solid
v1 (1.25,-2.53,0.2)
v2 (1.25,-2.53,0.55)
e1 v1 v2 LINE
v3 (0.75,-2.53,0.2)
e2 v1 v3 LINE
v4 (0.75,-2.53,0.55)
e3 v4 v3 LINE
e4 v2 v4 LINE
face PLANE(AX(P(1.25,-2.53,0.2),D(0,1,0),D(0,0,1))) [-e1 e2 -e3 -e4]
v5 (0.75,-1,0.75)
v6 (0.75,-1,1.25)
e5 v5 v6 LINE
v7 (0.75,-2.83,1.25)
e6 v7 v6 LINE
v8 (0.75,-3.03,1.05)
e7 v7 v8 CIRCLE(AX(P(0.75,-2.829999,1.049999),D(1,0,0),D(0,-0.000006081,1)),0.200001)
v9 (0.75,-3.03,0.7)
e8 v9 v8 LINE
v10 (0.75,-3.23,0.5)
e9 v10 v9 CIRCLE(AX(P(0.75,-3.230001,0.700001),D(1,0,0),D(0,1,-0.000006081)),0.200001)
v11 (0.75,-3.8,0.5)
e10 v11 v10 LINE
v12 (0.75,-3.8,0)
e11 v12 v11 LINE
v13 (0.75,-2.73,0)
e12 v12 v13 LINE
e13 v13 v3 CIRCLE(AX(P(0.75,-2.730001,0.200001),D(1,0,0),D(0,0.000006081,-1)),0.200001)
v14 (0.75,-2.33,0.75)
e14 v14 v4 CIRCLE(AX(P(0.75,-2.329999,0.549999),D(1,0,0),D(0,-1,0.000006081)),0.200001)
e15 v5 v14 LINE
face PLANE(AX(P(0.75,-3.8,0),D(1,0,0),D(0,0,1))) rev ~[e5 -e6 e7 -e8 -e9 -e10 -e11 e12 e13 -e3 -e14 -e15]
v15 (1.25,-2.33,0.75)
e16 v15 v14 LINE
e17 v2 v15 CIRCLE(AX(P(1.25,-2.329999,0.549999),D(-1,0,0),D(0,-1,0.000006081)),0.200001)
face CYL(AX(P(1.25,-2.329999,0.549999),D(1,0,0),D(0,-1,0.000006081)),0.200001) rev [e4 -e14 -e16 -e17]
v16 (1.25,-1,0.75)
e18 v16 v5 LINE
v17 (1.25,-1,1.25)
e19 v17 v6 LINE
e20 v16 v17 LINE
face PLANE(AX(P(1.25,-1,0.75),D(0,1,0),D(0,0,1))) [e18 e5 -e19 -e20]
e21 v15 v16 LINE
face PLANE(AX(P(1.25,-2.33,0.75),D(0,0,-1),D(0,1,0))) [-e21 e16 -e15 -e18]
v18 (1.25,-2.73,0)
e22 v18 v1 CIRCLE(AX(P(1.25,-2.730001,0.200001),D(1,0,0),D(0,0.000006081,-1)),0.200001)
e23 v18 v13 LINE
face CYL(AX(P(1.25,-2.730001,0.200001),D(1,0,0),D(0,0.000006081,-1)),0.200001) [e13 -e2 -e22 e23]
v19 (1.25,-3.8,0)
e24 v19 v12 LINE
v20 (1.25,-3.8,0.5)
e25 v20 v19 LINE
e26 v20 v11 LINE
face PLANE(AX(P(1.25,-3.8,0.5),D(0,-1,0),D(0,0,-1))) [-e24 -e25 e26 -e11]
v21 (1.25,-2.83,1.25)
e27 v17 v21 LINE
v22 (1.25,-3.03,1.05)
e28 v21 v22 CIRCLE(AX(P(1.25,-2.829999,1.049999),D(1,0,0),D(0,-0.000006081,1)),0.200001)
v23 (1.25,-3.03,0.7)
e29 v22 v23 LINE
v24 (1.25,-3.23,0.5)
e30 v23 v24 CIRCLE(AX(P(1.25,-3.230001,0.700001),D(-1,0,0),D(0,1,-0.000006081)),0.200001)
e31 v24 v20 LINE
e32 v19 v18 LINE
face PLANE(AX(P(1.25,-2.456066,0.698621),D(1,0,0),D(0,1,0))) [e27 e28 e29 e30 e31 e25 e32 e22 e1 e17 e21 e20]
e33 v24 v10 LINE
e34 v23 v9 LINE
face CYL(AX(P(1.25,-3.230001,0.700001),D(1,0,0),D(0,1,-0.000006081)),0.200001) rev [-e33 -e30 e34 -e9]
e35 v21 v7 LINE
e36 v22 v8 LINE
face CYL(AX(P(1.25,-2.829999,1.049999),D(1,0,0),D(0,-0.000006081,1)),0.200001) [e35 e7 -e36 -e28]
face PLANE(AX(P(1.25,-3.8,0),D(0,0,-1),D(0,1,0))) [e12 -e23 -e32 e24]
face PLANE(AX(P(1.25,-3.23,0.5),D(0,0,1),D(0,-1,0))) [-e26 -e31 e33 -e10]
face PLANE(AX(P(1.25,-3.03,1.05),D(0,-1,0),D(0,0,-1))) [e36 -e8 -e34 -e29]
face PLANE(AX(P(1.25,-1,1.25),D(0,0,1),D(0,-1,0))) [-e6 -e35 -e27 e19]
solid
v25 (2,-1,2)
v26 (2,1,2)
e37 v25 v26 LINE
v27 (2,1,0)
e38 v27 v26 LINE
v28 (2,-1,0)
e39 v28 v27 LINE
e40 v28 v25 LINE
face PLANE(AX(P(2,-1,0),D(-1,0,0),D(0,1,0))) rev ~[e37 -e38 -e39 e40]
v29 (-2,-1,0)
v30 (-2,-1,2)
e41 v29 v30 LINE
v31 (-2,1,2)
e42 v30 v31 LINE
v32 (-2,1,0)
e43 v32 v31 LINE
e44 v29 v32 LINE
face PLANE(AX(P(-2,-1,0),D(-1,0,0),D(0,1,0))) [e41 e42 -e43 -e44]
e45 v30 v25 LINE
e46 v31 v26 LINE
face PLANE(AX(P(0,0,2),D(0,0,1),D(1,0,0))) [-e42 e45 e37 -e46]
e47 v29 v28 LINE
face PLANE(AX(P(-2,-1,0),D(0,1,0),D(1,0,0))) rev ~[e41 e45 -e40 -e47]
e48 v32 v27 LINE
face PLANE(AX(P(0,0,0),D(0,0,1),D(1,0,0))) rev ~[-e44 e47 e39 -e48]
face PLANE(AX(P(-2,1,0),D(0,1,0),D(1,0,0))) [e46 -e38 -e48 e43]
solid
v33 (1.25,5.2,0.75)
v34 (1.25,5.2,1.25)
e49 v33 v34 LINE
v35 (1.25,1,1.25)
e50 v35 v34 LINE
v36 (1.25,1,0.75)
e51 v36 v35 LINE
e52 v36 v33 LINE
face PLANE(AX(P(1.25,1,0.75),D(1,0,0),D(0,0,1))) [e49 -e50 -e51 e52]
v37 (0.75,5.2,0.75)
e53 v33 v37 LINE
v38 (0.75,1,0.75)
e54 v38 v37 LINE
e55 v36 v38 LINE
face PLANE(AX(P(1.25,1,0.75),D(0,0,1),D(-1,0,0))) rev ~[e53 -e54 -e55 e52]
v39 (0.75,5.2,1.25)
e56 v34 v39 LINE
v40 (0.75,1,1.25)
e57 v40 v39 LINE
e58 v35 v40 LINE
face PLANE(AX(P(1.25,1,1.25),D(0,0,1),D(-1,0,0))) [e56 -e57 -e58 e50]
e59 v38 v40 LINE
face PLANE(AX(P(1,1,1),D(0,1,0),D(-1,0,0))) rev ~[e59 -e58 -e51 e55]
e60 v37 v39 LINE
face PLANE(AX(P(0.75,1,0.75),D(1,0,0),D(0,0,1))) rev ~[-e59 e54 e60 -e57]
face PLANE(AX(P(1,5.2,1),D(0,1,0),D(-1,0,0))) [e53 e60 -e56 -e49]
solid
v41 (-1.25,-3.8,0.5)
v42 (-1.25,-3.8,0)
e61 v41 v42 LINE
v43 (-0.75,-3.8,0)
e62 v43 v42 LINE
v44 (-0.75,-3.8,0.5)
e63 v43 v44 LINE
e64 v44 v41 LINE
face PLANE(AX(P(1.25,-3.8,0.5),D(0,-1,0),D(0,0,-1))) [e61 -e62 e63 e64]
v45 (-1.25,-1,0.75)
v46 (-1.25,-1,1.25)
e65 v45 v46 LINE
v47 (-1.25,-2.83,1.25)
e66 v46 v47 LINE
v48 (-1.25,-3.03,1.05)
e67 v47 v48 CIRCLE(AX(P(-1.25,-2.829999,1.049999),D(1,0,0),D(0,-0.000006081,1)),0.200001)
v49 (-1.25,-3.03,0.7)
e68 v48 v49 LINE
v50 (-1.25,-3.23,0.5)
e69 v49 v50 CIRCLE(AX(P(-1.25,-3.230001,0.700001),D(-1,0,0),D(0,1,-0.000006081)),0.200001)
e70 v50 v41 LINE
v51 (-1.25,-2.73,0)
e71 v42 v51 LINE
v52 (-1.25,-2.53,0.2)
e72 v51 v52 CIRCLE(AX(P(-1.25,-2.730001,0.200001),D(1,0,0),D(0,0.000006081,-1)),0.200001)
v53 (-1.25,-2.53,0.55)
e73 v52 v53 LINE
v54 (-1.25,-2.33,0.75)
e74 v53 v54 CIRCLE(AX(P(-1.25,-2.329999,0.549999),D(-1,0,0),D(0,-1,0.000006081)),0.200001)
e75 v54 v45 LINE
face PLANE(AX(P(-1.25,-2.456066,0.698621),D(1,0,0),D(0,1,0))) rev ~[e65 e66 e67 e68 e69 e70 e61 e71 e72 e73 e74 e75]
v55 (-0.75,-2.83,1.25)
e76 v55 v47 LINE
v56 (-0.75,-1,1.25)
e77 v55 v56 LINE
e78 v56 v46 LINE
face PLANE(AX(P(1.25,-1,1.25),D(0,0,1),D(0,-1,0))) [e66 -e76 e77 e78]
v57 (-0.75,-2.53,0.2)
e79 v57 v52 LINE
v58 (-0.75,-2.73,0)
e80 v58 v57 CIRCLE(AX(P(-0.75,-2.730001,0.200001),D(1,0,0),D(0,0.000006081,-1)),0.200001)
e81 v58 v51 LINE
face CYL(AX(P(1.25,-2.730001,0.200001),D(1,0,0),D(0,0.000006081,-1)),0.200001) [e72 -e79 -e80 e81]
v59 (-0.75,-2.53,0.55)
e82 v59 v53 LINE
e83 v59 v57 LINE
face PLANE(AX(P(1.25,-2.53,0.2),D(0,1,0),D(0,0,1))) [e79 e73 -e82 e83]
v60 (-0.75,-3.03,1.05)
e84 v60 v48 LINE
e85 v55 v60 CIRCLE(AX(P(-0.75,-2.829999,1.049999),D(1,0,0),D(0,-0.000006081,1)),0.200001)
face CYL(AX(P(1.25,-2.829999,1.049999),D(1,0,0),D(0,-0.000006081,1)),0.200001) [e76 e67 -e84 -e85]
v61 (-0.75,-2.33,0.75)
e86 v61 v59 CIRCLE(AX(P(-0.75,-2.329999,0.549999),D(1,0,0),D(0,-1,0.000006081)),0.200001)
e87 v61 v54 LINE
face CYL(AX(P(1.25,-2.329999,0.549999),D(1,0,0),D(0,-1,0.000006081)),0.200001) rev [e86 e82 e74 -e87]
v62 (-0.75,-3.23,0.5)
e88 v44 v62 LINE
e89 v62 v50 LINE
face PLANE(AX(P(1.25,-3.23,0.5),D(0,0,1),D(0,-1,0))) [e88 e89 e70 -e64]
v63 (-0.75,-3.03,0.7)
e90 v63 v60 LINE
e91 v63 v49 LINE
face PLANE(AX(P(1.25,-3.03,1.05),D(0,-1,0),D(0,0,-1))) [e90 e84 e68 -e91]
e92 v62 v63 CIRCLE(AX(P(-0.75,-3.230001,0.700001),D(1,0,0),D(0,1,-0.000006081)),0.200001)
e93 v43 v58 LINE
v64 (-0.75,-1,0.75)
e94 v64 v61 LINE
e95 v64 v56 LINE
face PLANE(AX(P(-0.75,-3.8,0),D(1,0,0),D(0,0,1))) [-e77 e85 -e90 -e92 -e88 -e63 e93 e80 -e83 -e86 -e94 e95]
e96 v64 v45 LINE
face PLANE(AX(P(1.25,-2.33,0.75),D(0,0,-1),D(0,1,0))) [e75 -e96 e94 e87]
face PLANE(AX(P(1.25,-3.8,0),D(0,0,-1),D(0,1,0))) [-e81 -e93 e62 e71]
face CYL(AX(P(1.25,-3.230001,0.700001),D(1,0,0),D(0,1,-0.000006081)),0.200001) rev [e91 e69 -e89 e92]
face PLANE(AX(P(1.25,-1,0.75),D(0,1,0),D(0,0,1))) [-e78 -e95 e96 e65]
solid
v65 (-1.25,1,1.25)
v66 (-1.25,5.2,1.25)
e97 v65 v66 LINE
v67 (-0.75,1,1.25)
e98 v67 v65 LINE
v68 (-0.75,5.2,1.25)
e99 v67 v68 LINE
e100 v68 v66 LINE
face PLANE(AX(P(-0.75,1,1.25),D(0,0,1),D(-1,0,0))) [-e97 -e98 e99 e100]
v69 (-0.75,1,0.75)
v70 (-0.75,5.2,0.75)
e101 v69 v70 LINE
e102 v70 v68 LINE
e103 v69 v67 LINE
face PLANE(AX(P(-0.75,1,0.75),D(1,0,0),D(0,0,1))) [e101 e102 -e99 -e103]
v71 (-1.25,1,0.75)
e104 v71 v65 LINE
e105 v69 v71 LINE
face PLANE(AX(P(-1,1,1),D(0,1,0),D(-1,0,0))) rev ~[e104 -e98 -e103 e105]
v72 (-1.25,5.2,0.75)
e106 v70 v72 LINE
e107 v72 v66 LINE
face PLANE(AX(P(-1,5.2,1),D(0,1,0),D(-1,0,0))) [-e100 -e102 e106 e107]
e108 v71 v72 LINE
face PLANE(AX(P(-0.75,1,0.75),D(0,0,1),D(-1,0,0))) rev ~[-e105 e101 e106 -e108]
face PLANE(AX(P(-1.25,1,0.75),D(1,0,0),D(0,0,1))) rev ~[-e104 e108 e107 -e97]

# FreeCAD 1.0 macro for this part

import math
import FreeCAD as App
import Part
import Sketcher
from FreeCAD import Vector
Q = App.Units.Quantity

doc = App.newDocument("Part")
body = doc.addObject("PartDesign::Body", "Body")

# Sketch on XY plane
sketch1 = body.newObject("Sketcher::SketchObject", "Sketch")
sketch1.AttachmentSupport = (doc.getObject("XY_Plane"), [""])
sketch1.MapMode = "FlatFace"
sketch1.addGeometry(Part.LineSegment(Vector(-2, 1, 0), Vector(-2, -1, 0)), False)
sketch1.addGeometry(Part.LineSegment(Vector(-2, -1, 0), Vector(2, -1, 0)), False)
sketch1.addGeometry(Part.LineSegment(Vector(2, -1, 0), Vector(2, 1, 0)), False)
sketch1.addGeometry(Part.LineSegment(Vector(2, 1, 0), Vector(-2, 1, 0)), False)
sketch1.addConstraint(Sketcher.Constraint("Coincident", 0, 2, 1, 1))
sketch1.addConstraint(Sketcher.Constraint("Coincident", 1, 2, 2, 1))
sketch1.addConstraint(Sketcher.Constraint("Coincident", 2, 2, 3, 1))
sketch1.addConstraint(Sketcher.Constraint("Coincident", 3, 2, 0, 1))
sketch1.addConstraint(Sketcher.Constraint("Vertical", 0))
sketch1.addConstraint(Sketcher.Constraint("Horizontal", 1))
sketch1.addConstraint(Sketcher.Constraint("Vertical", 2))
sketch1.addConstraint(Sketcher.Constraint("Horizontal", 3))
sketch1.addConstraint(Sketcher.Constraint("Symmetric", 0, 2, 2, 2, -1, 1))
sketch1.addConstraint(Sketcher.Constraint("DistanceX", 1, 1, 1, 2, Q("4 mm")))
sketch1.addConstraint(Sketcher.Constraint("DistanceY", 0, 2, 0, 1, Q("2 mm")))
pad1 = body.newObject("PartDesign::Pad", "Pad")
pad1.Profile = sketch1
pad1.Length = 2
body2 = doc.addObject("PartDesign::Body", "Body001")
body2.AllowCompound = True

# Sketch on XZ plane
sketch2 = body2.newObject("Sketcher::SketchObject", "Sketch001")
sketch2.AttachmentSupport = (doc.getObject("XZ_Plane001"), [""])
sketch2.MapMode = "FlatFace"
sketch2.AttachmentOffset = App.Placement(Vector(0, 0, -1), App.Rotation())
sketch2.addGeometry(Part.LineSegment(Vector(1.2, 1.2, 0), Vector(1.2, 0.8, 0)), False)
sketch2.addGeometry(Part.LineSegment(Vector(1.2, 0.8, 0), Vector(0.8, 0.8, 0)), False)
sketch2.addGeometry(Part.LineSegment(Vector(0.8, 0.8, 0), Vector(0.8, 1.2, 0)), False)
sketch2.addGeometry(Part.LineSegment(Vector(0.8, 1.2, 0), Vector(1.2, 1.2, 0)), False)
sketch2.addGeometry(Part.LineSegment(Vector(-0.8, 1.2, 0), Vector(-0.8, 0.8, 0)), False)
sketch2.addGeometry(Part.LineSegment(Vector(-0.8, 0.8, 0), Vector(-1.2, 0.8, 0)), False)
sketch2.addGeometry(Part.LineSegment(Vector(-1.2, 0.8, 0), Vector(-1.2, 1.2, 0)), False)
sketch2.addGeometry(Part.LineSegment(Vector(-1.2, 1.2, 0), Vector(-0.8, 1.2, 0)), False)
sketch2.addConstraint(Sketcher.Constraint("Coincident", 0, 2, 1, 1))
sketch2.addConstraint(Sketcher.Constraint("Coincident", 1, 2, 2, 1))
sketch2.addConstraint(Sketcher.Constraint("Coincident", 2, 2, 3, 1))
sketch2.addConstraint(Sketcher.Constraint("Coincident", 3, 2, 0, 1))
sketch2.addConstraint(Sketcher.Constraint("Coincident", 4, 2, 5, 1))
sketch2.addConstraint(Sketcher.Constraint("Coincident", 5, 2, 6, 1))
sketch2.addConstraint(Sketcher.Constraint("Coincident", 6, 2, 7, 1))
sketch2.addConstraint(Sketcher.Constraint("Coincident", 7, 2, 4, 1))
sketch2.addConstraint(Sketcher.Constraint("Vertical", 0))
sketch2.addConstraint(Sketcher.Constraint("Horizontal", 1))
sketch2.addConstraint(Sketcher.Constraint("Vertical", 2))
sketch2.addConstraint(Sketcher.Constraint("Horizontal", 3))
sketch2.addConstraint(Sketcher.Constraint("Vertical", 4))
sketch2.addConstraint(Sketcher.Constraint("Horizontal", 5))
sketch2.addConstraint(Sketcher.Constraint("Vertical", 6))
sketch2.addConstraint(Sketcher.Constraint("Horizontal", 7))
sketch2.addConstraint(Sketcher.Constraint("Symmetric", 1, 2, 4, 2, -2))
sketch2.addConstraint(Sketcher.Constraint("Symmetric", 3, 2, 6, 2, -2))
sketch2.addConstraint(Sketcher.Constraint("Equal", 7, 0))
sketch2.addConstraint(Sketcher.Constraint("DistanceX", 1, 2, 1, 1, Q("0.5 mm")))
sketch2.addConstraint(Sketcher.Constraint("DistanceX", 4, 2, 0, 2, Q("2 mm")))
sketch2.addConstraint(Sketcher.Constraint("DistanceY", -1, 1, 0, 2, Q("0.75 mm")))
pad2 = body2.newObject("PartDesign::Pad", "Pad001")
pad2.Profile = sketch2
pad2.Length = 4.2
pad2.Reversed = True
body3 = doc.addObject("PartDesign::Body", "Body002")
body3.AllowCompound = True

# Sketch on YZ plane
sketch3 = body3.newObject("Sketcher::SketchObject", "Sketch002")
sketch3.AttachmentSupport = (doc.getObject("YZ_Plane002"), [""])
sketch3.MapMode = "FlatFace"
sketch3.AttachmentOffset = App.Placement(Vector(0, 0, 1.25), App.Rotation())
sketch3.addGeometry(Part.LineSegment(Vector(-2.33, 0.75, 0), Vector(-1, 0.75, 0)), False)
sketch3.addGeometry(Part.LineSegment(Vector(-1, 0.75, 0), Vector(-1, 1.25, 0)), False)
sketch3.addGeometry(Part.LineSegment(Vector(-1, 1.25, 0), Vector(-2.83, 1.25, 0)), False)
sketch3.addGeometry(Part.ArcOfCircle(Part.Circle(Vector(-2.83, 1.05, 0), Vector(0, 0, 1), 0.2), math.radians(90), math.radians(180)), False)
sketch3.addGeometry(Part.LineSegment(Vector(-3.03, 1.05, 0), Vector(-3.03, 0.7, 0)), False)
sketch3.addGeometry(Part.ArcOfCircle(Part.Circle(Vector(-3.23, 0.7, 0), Vector(0, 0, 1), 0.2), math.radians(-90), math.radians(0)), False)
sketch3.addGeometry(Part.LineSegment(Vector(-3.23, 0.5, 0), Vector(-3.8, 0.5, 0)), False)
sketch3.addGeometry(Part.LineSegment(Vector(-3.8, 0.5, 0), Vector(-3.8, 0, 0)), False)
sketch3.addGeometry(Part.LineSegment(Vector(-3.8, 0, 0), Vector(-2.73, 0, 0)), False)
sketch3.addGeometry(Part.ArcOfCircle(Part.Circle(Vector(-2.73, 0.2, 0), Vector(0, 0, 1), 0.2), math.radians(-90), math.radians(0)), False)
sketch3.addGeometry(Part.LineSegment(Vector(-2.53, 0.2, 0), Vector(-2.53, 0.55, 0)), False)
sketch3.addGeometry(Part.ArcOfCircle(Part.Circle(Vector(-2.33, 0.55, 0), Vector(0, 0, 1), 0.2), math.radians(90), math.radians(180)), False)
sketch3.addConstraint(Sketcher.Constraint("Coincident", 0, 2, 1, 1))
sketch3.addConstraint(Sketcher.Constraint("Coincident", 1, 2, 2, 1))
sketch3.addConstraint(Sketcher.Constraint("Coincident", 2, 2, 3, 1))
sketch3.addConstraint(Sketcher.Constraint("Coincident", 3, 2, 4, 1))
sketch3.addConstraint(Sketcher.Constraint("Coincident", 4, 2, 5, 2))
sketch3.addConstraint(Sketcher.Constraint("Coincident", 5, 1, 6, 1))
sketch3.addConstraint(Sketcher.Constraint("Coincident", 6, 2, 7, 1))
sketch3.addConstraint(Sketcher.Constraint("Coincident", 7, 2, 8, 1))
sketch3.addConstraint(Sketcher.Constraint("Coincident", 8, 2, 9, 1))
sketch3.addConstraint(Sketcher.Constraint("Coincident", 9, 2, 10, 1))
sketch3.addConstraint(Sketcher.Constraint("Coincident", 10, 2, 11, 2))
sketch3.addConstraint(Sketcher.Constraint("Coincident", 11, 1, 0, 1))
sketch3.addConstraint(Sketcher.Constraint("Horizontal", 0))
sketch3.addConstraint(Sketcher.Constraint("Vertical", 1))
sketch3.addConstraint(Sketcher.Constraint("Horizontal", 2))
sketch3.addConstraint(Sketcher.Constraint("Vertical", 4))
sketch3.addConstraint(Sketcher.Constraint("Horizontal", 6))
sketch3.addConstraint(Sketcher.Constraint("Vertical", 7))
sketch3.addConstraint(Sketcher.Constraint("Horizontal", 8))
sketch3.addConstraint(Sketcher.Constraint("Vertical", 10))
sketch3.addConstraint(Sketcher.Constraint("Equal", 3, 5))
sketch3.addConstraint(Sketcher.Constraint("Equal", 5, 9))
sketch3.addConstraint(Sketcher.Constraint("Equal", 9, 11))
sketch3.addConstraint(Sketcher.Constraint("PointOnObject", 7, 2, -1))
sketch3.addConstraint(Sketcher.Constraint("Horizontal", 5, 3, 4, 2))
sketch3.addConstraint(Sketcher.Constraint("Horizontal", 11, 3, 10, 2))
sketch3.addConstraint(Sketcher.Constraint("Vertical", 3, 3, 2, 2))
sketch3.addConstraint(Sketcher.Constraint("Vertical", 9, 3, 8, 2))
sketch3.addConstraint(Sketcher.Constraint("Equal", 1, 7))
sketch3.addConstraint(Sketcher.Constraint("Equal", 4, 10))
sketch3.addConstraint(Sketcher.Constraint("Radius", 3, Q("0.200001 mm")))
sketch3.addConstraint(Sketcher.Constraint("DistanceY", 1, 1, 1, 2, Q("0.5 mm")))
sketch3.addConstraint(Sketcher.Constraint("DistanceX", 0, 2, -1, 1, Q("1 mm")))
sketch3.addConstraint(Sketcher.Constraint("DistanceX", 0, 1, 0, 2, Q("1.33 mm")))
sketch3.addConstraint(Sketcher.Constraint("DistanceX", 2, 2, 2, 1, Q("1.83 mm")))
sketch3.addConstraint(Sketcher.Constraint("DistanceX", 6, 2, 6, 1, Q("0.57 mm")))
sketch3.addConstraint(Sketcher.Constraint("DistanceX", 8, 1, 8, 2, Q("1.07 mm")))
sketch3.addConstraint(Sketcher.Constraint("DistanceY", 4, 2, 4, 1, Q("0.35 mm")))
sketch3.addConstraint(Sketcher.Constraint("DistanceX", 6, 2, -1, 1, Q("3.8 mm")))
sketch3.addConstraint(Sketcher.Constraint("DistanceY", -1, 1, 9, 2, Q("0.2 mm")))
pad3 = body3.newObject("PartDesign::Pad", "Pad002")
pad3.Profile = sketch3
pad3.Length = 2.5
pad3.Reversed = True

# Sketch on XZ plane
sketch4 = body3.newObject("Sketcher::SketchObject", "Sketch003")
sketch4.AttachmentSupport = (doc.getObject("XZ_Plane002"), [""])
sketch4.MapMode = "FlatFace"
sketch4.AttachmentOffset = App.Placement(Vector(0, 0, 3.8), App.Rotation())
sketch4.addGeometry(Part.LineSegment(Vector(-0.8, 1.4, 0), Vector(-0.8, 0, 0)), False)
sketch4.addGeometry(Part.LineSegment(Vector(-0.8, 0, 0), Vector(0.8, 0, 0)), False)
sketch4.addGeometry(Part.LineSegment(Vector(0.8, 0, 0), Vector(0.8, 1.4, 0)), False)
sketch4.addGeometry(Part.LineSegment(Vector(0.8, 1.4, 0), Vector(-0.8, 1.4, 0)), False)
sketch4.addConstraint(Sketcher.Constraint("Coincident", 0, 2, 1, 1))
sketch4.addConstraint(Sketcher.Constraint("Coincident", 1, 2, 2, 1))
sketch4.addConstraint(Sketcher.Constraint("Coincident", 2, 2, 3, 1))
sketch4.addConstraint(Sketcher.Constraint("Coincident", 3, 2, 0, 1))
sketch4.addConstraint(Sketcher.Constraint("Vertical", 0))
sketch4.addConstraint(Sketcher.Constraint("Horizontal", 1))
sketch4.addConstraint(Sketcher.Constraint("Vertical", 2))
sketch4.addConstraint(Sketcher.Constraint("Horizontal", 3))
sketch4.addConstraint(Sketcher.Constraint("Symmetric", 0, 2, 1, 2, -1, 1))
sketch4.addConstraint(Sketcher.Constraint("DistanceX", 1, 1, 1, 2, Q("1.5 mm")))
sketch4.addConstraint(Sketcher.Constraint("DistanceY", 0, 2, 0, 1, Q("1.436406 mm")))
pocket1 = body3.newObject("PartDesign::Pocket", "Pocket")
pocket1.Profile = sketch4
pocket1.Length = 2.8

doc.recompute()
